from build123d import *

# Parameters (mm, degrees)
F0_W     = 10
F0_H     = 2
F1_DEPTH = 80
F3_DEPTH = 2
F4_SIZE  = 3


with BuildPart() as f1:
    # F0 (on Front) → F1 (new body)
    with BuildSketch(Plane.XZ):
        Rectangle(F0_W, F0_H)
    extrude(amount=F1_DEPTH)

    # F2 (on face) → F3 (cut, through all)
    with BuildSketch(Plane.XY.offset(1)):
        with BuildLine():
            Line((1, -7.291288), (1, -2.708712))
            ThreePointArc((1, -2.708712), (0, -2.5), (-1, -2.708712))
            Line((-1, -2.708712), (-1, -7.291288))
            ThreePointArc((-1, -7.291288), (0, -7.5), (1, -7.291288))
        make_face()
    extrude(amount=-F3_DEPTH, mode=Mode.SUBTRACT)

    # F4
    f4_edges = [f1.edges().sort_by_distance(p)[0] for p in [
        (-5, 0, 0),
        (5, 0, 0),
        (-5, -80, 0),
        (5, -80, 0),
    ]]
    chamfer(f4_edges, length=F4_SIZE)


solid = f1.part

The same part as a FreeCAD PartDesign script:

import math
import FreeCAD as App
import Part
import Sketcher

V = App.Vector


def edges_at(feature, points):
    """Names of the edges that pass closest to the given points."""
    edges = feature.Shape.Edges
    near = lambda p: min(range(len(edges)), key=lambda i: edges[i].distToShape(Part.Vertex(*p))[0])
    return sorted({f"Edge{near(p) + 1}" for p in points})

doc = App.newDocument("Part")
body = doc.addObject("PartDesign::Body", "Body")

# Sketch on XZ plane
sketch1 = doc.addObject("Sketcher::SketchObject", "Sketch")
body.addObject(sketch1)
sketch1.AttachmentSupport = (doc.XZ_Plane, [""])
sketch1.MapMode = "FlatFace"
sketch1.addGeometry(Part.LineSegment(V(-5, 1, 0), V(-5, -1, 0)), False)
sketch1.addGeometry(Part.LineSegment(V(-5, -1, 0), V(5, -1, 0)), False)
sketch1.addGeometry(Part.LineSegment(V(5, -1, 0), V(5, 1, 0)), False)
sketch1.addGeometry(Part.LineSegment(V(5, 1, 0), V(-5, 1, 0)), False)
sketch1.addConstraint(Sketcher.Constraint("Coincident", 0, 2, 1, 1))
sketch1.addConstraint(Sketcher.Constraint("Coincident", 1, 2, 2, 1))
sketch1.addConstraint(Sketcher.Constraint("Coincident", 2, 2, 3, 1))
sketch1.addConstraint(Sketcher.Constraint("Coincident", 3, 2, 0, 1))
sketch1.addConstraint(Sketcher.Constraint("Vertical", 0))
sketch1.addConstraint(Sketcher.Constraint("Horizontal", 1))
sketch1.addConstraint(Sketcher.Constraint("Vertical", 2))
sketch1.addConstraint(Sketcher.Constraint("Horizontal", 3))
sketch1.addConstraint(Sketcher.Constraint("Symmetric", 0, 2, 2, 2, -1, 1))
sketch1.addConstraint(Sketcher.Constraint("DistanceX", 1, 1, 1, 2, 10.0))
sketch1.addConstraint(Sketcher.Constraint("DistanceY", 0, 2, 0, 1, 2.0))
pad1 = doc.addObject("PartDesign::Pad", "Pad")
body.addObject(pad1)
pad1.Profile = sketch1
pad1.Length = 80

# Sketch on XY plane
sketch2 = doc.addObject("Sketcher::SketchObject", "Sketch001")
body.addObject(sketch2)
sketch2.AttachmentSupport = (doc.XY_Plane, [""])
sketch2.MapMode = "FlatFace"
sketch2.AttachmentOffset = App.Placement(V(0, 0, 1), App.Rotation())
sketch2.addGeometry(Part.LineSegment(V(1, -7.291288, 0), V(1, -2.708712, 0)), False)
sketch2.addGeometry(Part.ArcOfCircle(Part.Circle(V(0, -5.000002, 0), V(0, 0, 1), 2.500002), math.radians(66.421838), math.radians(113.578162)), False)
sketch2.addGeometry(Part.LineSegment(V(-1, -2.708712, 0), V(-1, -7.291288, 0)), False)
sketch2.addGeometry(Part.ArcOfCircle(Part.Circle(V(0, -4.999998, 0), V(0, 0, 1), 2.500002), math.radians(-113.578162), math.radians(-66.421838)), False)
sketch2.addConstraint(Sketcher.Constraint("Coincident", 0, 2, 1, 1))
sketch2.addConstraint(Sketcher.Constraint("Coincident", 1, 2, 2, 1))
sketch2.addConstraint(Sketcher.Constraint("Coincident", 2, 2, 3, 1))
sketch2.addConstraint(Sketcher.Constraint("Coincident", 3, 2, 0, 1))
sketch2.addConstraint(Sketcher.Constraint("Vertical", 0))
sketch2.addConstraint(Sketcher.Constraint("Vertical", 2))
sketch2.addConstraint(Sketcher.Constraint("Coincident", 3, 3, 1, 3))
sketch2.addConstraint(Sketcher.Constraint("Equal", 1, 3))
sketch2.addConstraint(Sketcher.Constraint("Symmetric", 0, 2, 1, 2, -2))
sketch2.addConstraint(Sketcher.Constraint("Radius", 1, 2.500002))
sketch2.addConstraint(Sketcher.Constraint("DistanceY", 1, 3, -1, 1, 5.000002))
sketch2.addConstraint(Sketcher.Constraint("DistanceX", -1, 1, 0, 2, 1.0))
pocket1 = doc.addObject("PartDesign::Pocket", "Pocket")
body.addObject(pocket1)
pocket1.Profile = sketch2
pocket1.Type = "ThroughAll"
doc.recompute()

chamfer = doc.addObject("PartDesign::Chamfer", "Chamfer")
body.addObject(chamfer)
chamfer.Base = (pocket1, edges_at(pocket1, [
    (-5, 0, 0),
    (5, 0, 0),
    (-5, -80, 0),
    (5, -80, 0),
]))
chamfer.Size = 3

doc.recompute()
